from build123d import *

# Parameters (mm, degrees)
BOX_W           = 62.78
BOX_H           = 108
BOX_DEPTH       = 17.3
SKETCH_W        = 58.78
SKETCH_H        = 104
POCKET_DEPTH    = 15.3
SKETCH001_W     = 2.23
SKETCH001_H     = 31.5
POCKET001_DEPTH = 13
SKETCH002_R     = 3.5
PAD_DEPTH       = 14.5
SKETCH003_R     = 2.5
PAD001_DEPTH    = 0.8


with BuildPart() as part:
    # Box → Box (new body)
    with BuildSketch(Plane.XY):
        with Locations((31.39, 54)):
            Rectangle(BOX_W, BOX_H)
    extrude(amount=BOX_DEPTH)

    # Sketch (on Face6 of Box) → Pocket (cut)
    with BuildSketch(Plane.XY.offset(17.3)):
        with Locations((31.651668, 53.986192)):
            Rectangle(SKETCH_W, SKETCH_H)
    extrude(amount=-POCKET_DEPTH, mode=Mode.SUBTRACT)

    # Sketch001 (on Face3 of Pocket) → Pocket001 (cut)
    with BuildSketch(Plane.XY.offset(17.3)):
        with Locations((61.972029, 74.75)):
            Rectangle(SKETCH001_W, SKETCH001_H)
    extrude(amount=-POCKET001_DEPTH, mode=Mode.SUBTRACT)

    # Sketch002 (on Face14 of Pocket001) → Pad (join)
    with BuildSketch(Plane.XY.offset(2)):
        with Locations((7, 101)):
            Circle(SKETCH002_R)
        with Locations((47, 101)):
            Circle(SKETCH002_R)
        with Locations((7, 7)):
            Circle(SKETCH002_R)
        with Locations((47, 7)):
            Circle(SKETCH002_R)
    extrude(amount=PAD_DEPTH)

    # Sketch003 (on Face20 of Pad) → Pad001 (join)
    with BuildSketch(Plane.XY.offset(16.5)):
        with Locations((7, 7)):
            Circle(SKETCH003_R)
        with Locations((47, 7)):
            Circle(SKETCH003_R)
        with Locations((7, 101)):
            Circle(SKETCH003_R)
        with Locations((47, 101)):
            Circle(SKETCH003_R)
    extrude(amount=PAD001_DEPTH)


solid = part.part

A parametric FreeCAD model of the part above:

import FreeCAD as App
import Part
import Sketcher
from FreeCAD import Vector

doc = App.newDocument("Part")
body = doc.addObject("PartDesign::Body", "Body")

# Sketch on XY plane
sketch1 = body.newObject("Sketcher::SketchObject", "Sketch")
sketch1.AttachmentSupport = (doc.getObject("XY_Plane"), [""])
sketch1.MapMode = "FlatFace"
sketch1.addGeometry([
    Part.LineSegment(Vector(0, 108, 0), Vector(0, 0, 0)),
    Part.LineSegment(Vector(0, 0, 0), Vector(63, 0, 0)),
    Part.LineSegment(Vector(63, 0, 0), Vector(63, 108, 0)),
    Part.LineSegment(Vector(63, 108, 0), Vector(0, 108, 0)),
], False)
sketch1.addConstraint([
    Sketcher.Constraint("Coincident", 0, 2, 1, 1),
    Sketcher.Constraint("Coincident", 1, 2, 2, 1),
    Sketcher.Constraint("Coincident", 2, 2, 3, 1),
    Sketcher.Constraint("Coincident", 3, 2, 0, 1),
    Sketcher.Constraint("Vertical", 0),
    Sketcher.Constraint("Horizontal", 1),
    Sketcher.Constraint("Vertical", 2),
    Sketcher.Constraint("Horizontal", 3),
    Sketcher.Constraint("Coincident", 0, 2, -1, 1),
    Sketcher.Constraint("DistanceY", 0, 2, 0, 1, 108.0),
    Sketcher.Constraint("DistanceX", 1, 1, 1, 2, 62.78),
])
pad1 = body.newObject("PartDesign::Pad", "Pad")
pad1.Profile = sketch1
pad1.Length = 17.3

# Sketch on XY plane
sketch2 = body.newObject("Sketcher::SketchObject", "Sketch001")
sketch2.AttachmentSupport = (doc.getObject("XY_Plane"), [""])
sketch2.MapMode = "FlatFace"
sketch2.AttachmentOffset = App.Placement(Vector(0, 0, 17.3), App.Rotation())
sketch2.addGeometry([
    Part.LineSegment(Vector(2, 106, 0), Vector(2, 2, 0)),
    Part.LineSegment(Vector(2, 2, 0), Vector(61, 2, 0)),
    Part.LineSegment(Vector(61, 2, 0), Vector(61, 106, 0)),
    Part.LineSegment(Vector(61, 106, 0), Vector(2, 106, 0)),
], False)
sketch2.addConstraint([
    Sketcher.Constraint("Coincident", 0, 2, 1, 1),
    Sketcher.Constraint("Coincident", 1, 2, 2, 1),
    Sketcher.Constraint("Coincident", 2, 2, 3, 1),
    Sketcher.Constraint("Coincident", 3, 2, 0, 1),
    Sketcher.Constraint("Vertical", 0),
    Sketcher.Constraint("Horizontal", 1),
    Sketcher.Constraint("Vertical", 2),
    Sketcher.Constraint("Horizontal", 3),
    Sketcher.Constraint("DistanceY", 0, 2, 0, 1, 104.0),
    Sketcher.Constraint("DistanceX", 1, 1, 1, 2, 58.78),
    Sketcher.Constraint("DistanceX", -1, 1, 0, 2, 2.261668),
    Sketcher.Constraint("DistanceY", -1, 1, 0, 2, 1.986192),
])
pocket1 = body.newObject("PartDesign::Pocket", "Pocket")
pocket1.Profile = sketch2
pocket1.Length = 15.3

# Sketch on XY plane
sketch3 = body.newObject("Sketcher::SketchObject", "Sketch002")
sketch3.AttachmentSupport = (doc.getObject("XY_Plane"), [""])
sketch3.MapMode = "FlatFace"
sketch3.AttachmentOffset = App.Placement(Vector(0, 0, 17.3), App.Rotation())
sketch3.addGeometry([
    Part.LineSegment(Vector(60.9, 90.5, 0), Vector(60.9, 59, 0)),
    Part.LineSegment(Vector(60.9, 59, 0), Vector(63.1, 59, 0)),
    Part.LineSegment(Vector(63.1, 59, 0), Vector(63.1, 90.5, 0)),
    Part.LineSegment(Vector(63.1, 90.5, 0), Vector(60.9, 90.5, 0)),
], False)
sketch3.addConstraint([
    Sketcher.Constraint("Coincident", 0, 2, 1, 1),
    Sketcher.Constraint("Coincident", 1, 2, 2, 1),
    Sketcher.Constraint("Coincident", 2, 2, 3, 1),
    Sketcher.Constraint("Coincident", 3, 2, 0, 1),
    Sketcher.Constraint("Vertical", 0),
    Sketcher.Constraint("Horizontal", 1),
    Sketcher.Constraint("Vertical", 2),
    Sketcher.Constraint("Horizontal", 3),
    Sketcher.Constraint("DistanceY", 0, 2, 0, 1, 31.5),
    Sketcher.Constraint("DistanceY", -1, 1, 0, 2, 59.0),
    Sketcher.Constraint("DistanceX", 1, 1, 1, 2, 2.23),
    Sketcher.Constraint("DistanceX", -1, 1, 0, 2, 60.857029),
])
pocket2 = body.newObject("PartDesign::Pocket", "Pocket001")
pocket2.Profile = sketch3
pocket2.Length = 13

# Sketch on XY plane
sketch4 = body.newObject("Sketcher::SketchObject", "Sketch003")
sketch4.AttachmentSupport = (doc.getObject("XY_Plane"), [""])
sketch4.MapMode = "FlatFace"
sketch4.AttachmentOffset = App.Placement(Vector(0, 0, 2), App.Rotation())
sketch4.addGeometry([
    Part.Circle(Vector(7, 101, 0), Vector(0, 0, 1), 3.5),
    Part.Circle(Vector(47, 101, 0), Vector(0, 0, 1), 3.5),
    Part.Circle(Vector(7, 7, 0), Vector(0, 0, 1), 3.5),
    Part.Circle(Vector(47, 7, 0), Vector(0, 0, 1), 3.5),
], False)
sketch4.addConstraint([
    Sketcher.Constraint("Equal", 0, 1),
    Sketcher.Constraint("Equal", 1, 2),
    Sketcher.Constraint("Equal", 2, 3),
    Sketcher.Constraint("Horizontal", 0, 3, 1, 3),
    Sketcher.Constraint("Horizontal", 2, 3, 3, 3),
    Sketcher.Constraint("Vertical", 0, 3, 2, 3),
    Sketcher.Constraint("Vertical", 1, 3, 3, 3),
    Sketcher.Constraint("Diameter", 0, 7.0),
    Sketcher.Constraint("DistanceX", -1, 1, 0, 3, 7.0),
    Sketcher.Constraint("DistanceY", -1, 1, 0, 3, 101.0),
    Sketcher.Constraint("DistanceX", -1, 1, 1, 3, 47.0),
    Sketcher.Constraint("DistanceY", -1, 1, 2, 3, 7.0),
])
pad2 = body.newObject("PartDesign::Pad", "Pad001")
pad2.Profile = sketch4
pad2.Length = 14.5

# Sketch on XY plane
sketch5 = body.newObject("Sketcher::SketchObject", "Sketch004")
sketch5.AttachmentSupport = (doc.getObject("XY_Plane"), [""])
sketch5.MapMode = "FlatFace"
sketch5.AttachmentOffset = App.Placement(Vector(0, 0, 16.5), App.Rotation())
sketch5.addGeometry([
    Part.Circle(Vector(7, 7, 0), Vector(0, 0, 1), 2.5),
    Part.Circle(Vector(47, 7, 0), Vector(0, 0, 1), 2.5),
    Part.Circle(Vector(7, 101, 0), Vector(0, 0, 1), 2.5),
    Part.Circle(Vector(47, 101, 0), Vector(0, 0, 1), 2.5),
], False)
sketch5.addConstraint([
    Sketcher.Constraint("Equal", 0, 1),
    Sketcher.Constraint("Equal", 1, 2),
    Sketcher.Constraint("Equal", 2, 3),
    Sketcher.Constraint("Horizontal", 0, 3, 1, 3),
    Sketcher.Constraint("Horizontal", 2, 3, 3, 3),
    Sketcher.Constraint("Vertical", 0, 3, 2, 3),
    Sketcher.Constraint("Vertical", 1, 3, 3, 3),
    Sketcher.Constraint("Diameter", 0, 5.0),
    Sketcher.Constraint("DistanceX", -1, 1, 0, 3, 7.0),
    Sketcher.Constraint("DistanceY", -1, 1, 0, 3, 7.0),
    Sketcher.Constraint("DistanceX", -1, 1, 1, 3, 47.0),
    Sketcher.Constraint("DistanceY", -1, 1, 2, 3, 101.0),
])
pad3 = body.newObject("PartDesign::Pad", "Pad002")
pad3.Profile = sketch5
pad3.Length = 0.8

doc.recompute()
